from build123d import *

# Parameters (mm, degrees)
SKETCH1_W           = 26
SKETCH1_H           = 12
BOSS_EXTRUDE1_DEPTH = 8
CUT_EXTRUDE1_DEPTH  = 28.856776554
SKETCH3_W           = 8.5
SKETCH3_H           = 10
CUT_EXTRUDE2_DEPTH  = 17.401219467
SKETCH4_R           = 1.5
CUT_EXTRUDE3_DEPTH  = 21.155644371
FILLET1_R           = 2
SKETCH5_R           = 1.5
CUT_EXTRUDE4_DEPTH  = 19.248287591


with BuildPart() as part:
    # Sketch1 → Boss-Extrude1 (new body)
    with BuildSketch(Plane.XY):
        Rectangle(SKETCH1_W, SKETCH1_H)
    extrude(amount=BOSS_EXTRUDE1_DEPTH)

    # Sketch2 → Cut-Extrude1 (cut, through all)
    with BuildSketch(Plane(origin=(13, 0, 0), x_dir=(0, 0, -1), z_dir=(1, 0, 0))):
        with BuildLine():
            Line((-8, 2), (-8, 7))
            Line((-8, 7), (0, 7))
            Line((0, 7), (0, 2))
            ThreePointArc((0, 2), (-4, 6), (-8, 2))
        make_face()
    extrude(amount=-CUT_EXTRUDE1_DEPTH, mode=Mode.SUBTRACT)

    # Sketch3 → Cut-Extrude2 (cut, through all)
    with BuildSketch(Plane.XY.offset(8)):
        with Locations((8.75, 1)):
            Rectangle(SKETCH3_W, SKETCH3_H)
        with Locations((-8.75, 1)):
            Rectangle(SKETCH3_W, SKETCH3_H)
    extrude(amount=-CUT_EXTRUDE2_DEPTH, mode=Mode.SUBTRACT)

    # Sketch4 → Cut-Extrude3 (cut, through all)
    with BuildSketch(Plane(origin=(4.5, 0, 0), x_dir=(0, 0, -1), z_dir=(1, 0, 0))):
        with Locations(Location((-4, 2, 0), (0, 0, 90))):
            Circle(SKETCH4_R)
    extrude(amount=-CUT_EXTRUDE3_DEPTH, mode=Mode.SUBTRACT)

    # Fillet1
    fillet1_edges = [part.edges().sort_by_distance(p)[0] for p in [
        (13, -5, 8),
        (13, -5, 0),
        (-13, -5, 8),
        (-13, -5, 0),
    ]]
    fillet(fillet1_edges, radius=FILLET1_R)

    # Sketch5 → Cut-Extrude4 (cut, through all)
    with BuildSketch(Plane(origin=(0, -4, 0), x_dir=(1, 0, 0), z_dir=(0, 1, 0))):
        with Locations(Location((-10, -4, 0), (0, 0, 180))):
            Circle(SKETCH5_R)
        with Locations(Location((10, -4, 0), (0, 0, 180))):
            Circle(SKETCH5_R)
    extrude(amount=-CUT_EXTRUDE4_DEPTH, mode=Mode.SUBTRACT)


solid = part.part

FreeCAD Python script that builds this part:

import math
import FreeCAD as App
import Part
import Sketcher
from FreeCAD import Vector
Q = App.Units.Quantity


def edges_at(feature, points):
    """Names of the edges that pass closest to the given points."""
    edges = feature.Shape.Edges
    near = lambda p: min(range(len(edges)), key=lambda i: edges[i].distToShape(Part.Vertex(*p))[0])
    return sorted({f"Edge{near(p) + 1}" for p in points})

doc = App.newDocument("Part")
body = doc.addObject("PartDesign::Body", "Body")

sketch1 = body.newObject("Sketcher::SketchObject", "Sketch")
sketch1.AttachmentSupport = (doc.getObject("XY_Plane"), [""])
sketch1.MapMode = "FlatFace"
sketch1.addGeometry([
    Part.LineSegment(Vector(-13, 6, 0), Vector(-13, -6, 0)),
    Part.LineSegment(Vector(-13, -6, 0), Vector(13, -6, 0)),
    Part.LineSegment(Vector(13, -6, 0), Vector(13, 6, 0)),
    Part.LineSegment(Vector(13, 6, 0), Vector(-13, 6, 0)),
], False)
sketch1.addConstraint([
    Sketcher.Constraint("Coincident", 0, 2, 1, 1),
    Sketcher.Constraint("Coincident", 1, 2, 2, 1),
    Sketcher.Constraint("Coincident", 2, 2, 3, 1),
    Sketcher.Constraint("Coincident", 3, 2, 0, 1),
    Sketcher.Constraint("Vertical", 0),
    Sketcher.Constraint("Horizontal", 1),
    Sketcher.Constraint("Vertical", 2),
    Sketcher.Constraint("Horizontal", 3),
    Sketcher.Constraint("Symmetric", 0, 2, 2, 2, -1, 1),
    Sketcher.Constraint("DistanceX", 1, 1, 1, 2, Q("26 mm")),
    Sketcher.Constraint("DistanceY", 0, 2, 0, 1, Q("12 mm")),
])
pad1 = body.newObject("PartDesign::Pad", "Pad")
pad1.Profile = sketch1
pad1.Length = 8

sketch2 = body.newObject("Sketcher::SketchObject", "Sketch001")
sketch2.AttachmentSupport = (doc.getObject("YZ_Plane"), [""])
sketch2.MapMode = "FlatFace"
sketch2.AttachmentOffset = App.Placement(Vector(0, 0, 13), App.Rotation())
sketch2.addGeometry([
    Part.LineSegment(Vector(7, 8, 0), Vector(2, 8, 0)),
    Part.ArcOfCircle(Part.Circle(Vector(2, 4, 0), Vector(0, 0, 1), 4), math.radians(-90), math.radians(90)),
    Part.LineSegment(Vector(2, 0, 0), Vector(7, 0, 0)),
    Part.LineSegment(Vector(7, 0, 0), Vector(7, 8, 0)),
], False)
sketch2.addConstraint([
    Sketcher.Constraint("Tangent", 0, 2, 1, 2),
    Sketcher.Constraint("Tangent", 1, 1, 2, 1),
    Sketcher.Constraint("Coincident", 2, 2, 3, 1),
    Sketcher.Constraint("Coincident", 3, 2, 0, 1),
    Sketcher.Constraint("Horizontal", 0),
    Sketcher.Constraint("Horizontal", 2),
    Sketcher.Constraint("Vertical", 3),
    Sketcher.Constraint("PointOnObject", 1, 1, -1),
    Sketcher.Constraint("Radius", 1, Q("4 mm")),
    Sketcher.Constraint("DistanceX", 0, 2, 0, 1, Q("5 mm")),
    Sketcher.Constraint("DistanceX", -1, 1, 1, 3, Q("2 mm")),
])
pocket1 = body.newObject("PartDesign::Pocket", "Pocket")
pocket1.Profile = sketch2
pocket1.Type = "ThroughAll"

sketch3 = body.newObject("Sketcher::SketchObject", "Sketch002")
sketch3.AttachmentSupport = (doc.getObject("XY_Plane"), [""])
sketch3.MapMode = "FlatFace"
sketch3.AttachmentOffset = App.Placement(Vector(0, 0, 8), App.Rotation())
sketch3.addGeometry([
    Part.LineSegment(Vector(4, 6, 0), Vector(4, -4, 0)),
    Part.LineSegment(Vector(4, -4, 0), Vector(13, -4, 0)),
    Part.LineSegment(Vector(13, -4, 0), Vector(13, 6, 0)),
    Part.LineSegment(Vector(13, 6, 0), Vector(4, 6, 0)),
    Part.LineSegment(Vector(-13, 6, 0), Vector(-13, -4, 0)),
    Part.LineSegment(Vector(-13, -4, 0), Vector(-4, -4, 0)),
    Part.LineSegment(Vector(-4, -4, 0), Vector(-4, 6, 0)),
    Part.LineSegment(Vector(-4, 6, 0), Vector(-13, 6, 0)),
], False)
sketch3.addConstraint([
    Sketcher.Constraint("Coincident", 0, 2, 1, 1),
    Sketcher.Constraint("Coincident", 1, 2, 2, 1),
    Sketcher.Constraint("Coincident", 2, 2, 3, 1),
    Sketcher.Constraint("Coincident", 3, 2, 0, 1),
    Sketcher.Constraint("Coincident", 4, 2, 5, 1),
    Sketcher.Constraint("Coincident", 5, 2, 6, 1),
    Sketcher.Constraint("Coincident", 6, 2, 7, 1),
    Sketcher.Constraint("Coincident", 7, 2, 4, 1),
    Sketcher.Constraint("Vertical", 0),
    Sketcher.Constraint("Horizontal", 1),
    Sketcher.Constraint("Vertical", 2),
    Sketcher.Constraint("Horizontal", 3),
    Sketcher.Constraint("Vertical", 4),
    Sketcher.Constraint("Horizontal", 5),
    Sketcher.Constraint("Vertical", 6),
    Sketcher.Constraint("Horizontal", 7),
    Sketcher.Constraint("Symmetric", 1, 2, 4, 2, -2),
    Sketcher.Constraint("Symmetric", 3, 2, 6, 2, -2),
    Sketcher.Constraint("DistanceY", 0, 2, 0, 1, Q("10 mm")),
    Sketcher.Constraint("DistanceX", 1, 1, 1, 2, Q("8.5 mm")),
    Sketcher.Constraint("DistanceY", 0, 2, -1, 1, Q("4 mm")),
    Sketcher.Constraint("DistanceX", -1, 1, 1, 2, Q("13 mm")),
])
pocket2 = body.newObject("PartDesign::Pocket", "Pocket001")
pocket2.Profile = sketch3
pocket2.Type = "ThroughAll"

sketch4 = body.newObject("Sketcher::SketchObject", "Sketch003")
sketch4.AttachmentSupport = (doc.getObject("YZ_Plane"), [""])
sketch4.MapMode = "FlatFace"
sketch4.AttachmentOffset = App.Placement(Vector(0, 0, 4.5), App.Rotation())
sketch4.addGeometry(Part.Circle(Vector(2, 4, 0), Vector(0, 0, 1), 1.5), False)
sketch4.addConstraint([
    Sketcher.Constraint("Diameter", 0, Q("3 mm")),
    Sketcher.Constraint("DistanceX", -1, 1, 0, 3, Q("2 mm")),
    Sketcher.Constraint("DistanceY", -1, 1, 0, 3, Q("4 mm")),
])
pocket3 = body.newObject("PartDesign::Pocket", "Pocket002")
pocket3.Profile = sketch4
pocket3.Type = "ThroughAll"
doc.recompute()

fillet = body.newObject("PartDesign::Fillet", "Fillet")
fillet.Base = (pocket3, edges_at(pocket3, [
    (13, -5, 8),
    (13, -5, 0),
    (-13, -5, 8),
    (-13, -5, 0),
]))
fillet.Radius = 2

sketch5 = body.newObject("Sketcher::SketchObject", "Sketch004")
sketch5.AttachmentSupport = (doc.getObject("XZ_Plane"), [""])
sketch5.MapMode = "FlatFace"
sketch5.AttachmentOffset = App.Placement(Vector(0, 0, 4), App.Rotation())
sketch5.addGeometry([
    Part.Circle(Vector(-10, 4, 0), Vector(0, 0, 1), 1.5),
    Part.Circle(Vector(10, 4, 0), Vector(0, 0, 1), 1.5),
], False)
sketch5.addConstraint([
    Sketcher.Constraint("Equal", 0, 1),
    Sketcher.Constraint("Symmetric", 0, 3, 1, 3, -2),
    Sketcher.Constraint("Diameter", 0, Q("3 mm")),
    Sketcher.Constraint("DistanceX", 0, 3, -1, 1, Q("10 mm")),
    Sketcher.Constraint("DistanceY", -1, 1, 0, 3, Q("4 mm")),
])
pocket4 = body.newObject("PartDesign::Pocket", "Pocket003")
pocket4.Profile = sketch5
pocket4.Type = "ThroughAll"
pocket4.Reversed = True

doc.recompute()
